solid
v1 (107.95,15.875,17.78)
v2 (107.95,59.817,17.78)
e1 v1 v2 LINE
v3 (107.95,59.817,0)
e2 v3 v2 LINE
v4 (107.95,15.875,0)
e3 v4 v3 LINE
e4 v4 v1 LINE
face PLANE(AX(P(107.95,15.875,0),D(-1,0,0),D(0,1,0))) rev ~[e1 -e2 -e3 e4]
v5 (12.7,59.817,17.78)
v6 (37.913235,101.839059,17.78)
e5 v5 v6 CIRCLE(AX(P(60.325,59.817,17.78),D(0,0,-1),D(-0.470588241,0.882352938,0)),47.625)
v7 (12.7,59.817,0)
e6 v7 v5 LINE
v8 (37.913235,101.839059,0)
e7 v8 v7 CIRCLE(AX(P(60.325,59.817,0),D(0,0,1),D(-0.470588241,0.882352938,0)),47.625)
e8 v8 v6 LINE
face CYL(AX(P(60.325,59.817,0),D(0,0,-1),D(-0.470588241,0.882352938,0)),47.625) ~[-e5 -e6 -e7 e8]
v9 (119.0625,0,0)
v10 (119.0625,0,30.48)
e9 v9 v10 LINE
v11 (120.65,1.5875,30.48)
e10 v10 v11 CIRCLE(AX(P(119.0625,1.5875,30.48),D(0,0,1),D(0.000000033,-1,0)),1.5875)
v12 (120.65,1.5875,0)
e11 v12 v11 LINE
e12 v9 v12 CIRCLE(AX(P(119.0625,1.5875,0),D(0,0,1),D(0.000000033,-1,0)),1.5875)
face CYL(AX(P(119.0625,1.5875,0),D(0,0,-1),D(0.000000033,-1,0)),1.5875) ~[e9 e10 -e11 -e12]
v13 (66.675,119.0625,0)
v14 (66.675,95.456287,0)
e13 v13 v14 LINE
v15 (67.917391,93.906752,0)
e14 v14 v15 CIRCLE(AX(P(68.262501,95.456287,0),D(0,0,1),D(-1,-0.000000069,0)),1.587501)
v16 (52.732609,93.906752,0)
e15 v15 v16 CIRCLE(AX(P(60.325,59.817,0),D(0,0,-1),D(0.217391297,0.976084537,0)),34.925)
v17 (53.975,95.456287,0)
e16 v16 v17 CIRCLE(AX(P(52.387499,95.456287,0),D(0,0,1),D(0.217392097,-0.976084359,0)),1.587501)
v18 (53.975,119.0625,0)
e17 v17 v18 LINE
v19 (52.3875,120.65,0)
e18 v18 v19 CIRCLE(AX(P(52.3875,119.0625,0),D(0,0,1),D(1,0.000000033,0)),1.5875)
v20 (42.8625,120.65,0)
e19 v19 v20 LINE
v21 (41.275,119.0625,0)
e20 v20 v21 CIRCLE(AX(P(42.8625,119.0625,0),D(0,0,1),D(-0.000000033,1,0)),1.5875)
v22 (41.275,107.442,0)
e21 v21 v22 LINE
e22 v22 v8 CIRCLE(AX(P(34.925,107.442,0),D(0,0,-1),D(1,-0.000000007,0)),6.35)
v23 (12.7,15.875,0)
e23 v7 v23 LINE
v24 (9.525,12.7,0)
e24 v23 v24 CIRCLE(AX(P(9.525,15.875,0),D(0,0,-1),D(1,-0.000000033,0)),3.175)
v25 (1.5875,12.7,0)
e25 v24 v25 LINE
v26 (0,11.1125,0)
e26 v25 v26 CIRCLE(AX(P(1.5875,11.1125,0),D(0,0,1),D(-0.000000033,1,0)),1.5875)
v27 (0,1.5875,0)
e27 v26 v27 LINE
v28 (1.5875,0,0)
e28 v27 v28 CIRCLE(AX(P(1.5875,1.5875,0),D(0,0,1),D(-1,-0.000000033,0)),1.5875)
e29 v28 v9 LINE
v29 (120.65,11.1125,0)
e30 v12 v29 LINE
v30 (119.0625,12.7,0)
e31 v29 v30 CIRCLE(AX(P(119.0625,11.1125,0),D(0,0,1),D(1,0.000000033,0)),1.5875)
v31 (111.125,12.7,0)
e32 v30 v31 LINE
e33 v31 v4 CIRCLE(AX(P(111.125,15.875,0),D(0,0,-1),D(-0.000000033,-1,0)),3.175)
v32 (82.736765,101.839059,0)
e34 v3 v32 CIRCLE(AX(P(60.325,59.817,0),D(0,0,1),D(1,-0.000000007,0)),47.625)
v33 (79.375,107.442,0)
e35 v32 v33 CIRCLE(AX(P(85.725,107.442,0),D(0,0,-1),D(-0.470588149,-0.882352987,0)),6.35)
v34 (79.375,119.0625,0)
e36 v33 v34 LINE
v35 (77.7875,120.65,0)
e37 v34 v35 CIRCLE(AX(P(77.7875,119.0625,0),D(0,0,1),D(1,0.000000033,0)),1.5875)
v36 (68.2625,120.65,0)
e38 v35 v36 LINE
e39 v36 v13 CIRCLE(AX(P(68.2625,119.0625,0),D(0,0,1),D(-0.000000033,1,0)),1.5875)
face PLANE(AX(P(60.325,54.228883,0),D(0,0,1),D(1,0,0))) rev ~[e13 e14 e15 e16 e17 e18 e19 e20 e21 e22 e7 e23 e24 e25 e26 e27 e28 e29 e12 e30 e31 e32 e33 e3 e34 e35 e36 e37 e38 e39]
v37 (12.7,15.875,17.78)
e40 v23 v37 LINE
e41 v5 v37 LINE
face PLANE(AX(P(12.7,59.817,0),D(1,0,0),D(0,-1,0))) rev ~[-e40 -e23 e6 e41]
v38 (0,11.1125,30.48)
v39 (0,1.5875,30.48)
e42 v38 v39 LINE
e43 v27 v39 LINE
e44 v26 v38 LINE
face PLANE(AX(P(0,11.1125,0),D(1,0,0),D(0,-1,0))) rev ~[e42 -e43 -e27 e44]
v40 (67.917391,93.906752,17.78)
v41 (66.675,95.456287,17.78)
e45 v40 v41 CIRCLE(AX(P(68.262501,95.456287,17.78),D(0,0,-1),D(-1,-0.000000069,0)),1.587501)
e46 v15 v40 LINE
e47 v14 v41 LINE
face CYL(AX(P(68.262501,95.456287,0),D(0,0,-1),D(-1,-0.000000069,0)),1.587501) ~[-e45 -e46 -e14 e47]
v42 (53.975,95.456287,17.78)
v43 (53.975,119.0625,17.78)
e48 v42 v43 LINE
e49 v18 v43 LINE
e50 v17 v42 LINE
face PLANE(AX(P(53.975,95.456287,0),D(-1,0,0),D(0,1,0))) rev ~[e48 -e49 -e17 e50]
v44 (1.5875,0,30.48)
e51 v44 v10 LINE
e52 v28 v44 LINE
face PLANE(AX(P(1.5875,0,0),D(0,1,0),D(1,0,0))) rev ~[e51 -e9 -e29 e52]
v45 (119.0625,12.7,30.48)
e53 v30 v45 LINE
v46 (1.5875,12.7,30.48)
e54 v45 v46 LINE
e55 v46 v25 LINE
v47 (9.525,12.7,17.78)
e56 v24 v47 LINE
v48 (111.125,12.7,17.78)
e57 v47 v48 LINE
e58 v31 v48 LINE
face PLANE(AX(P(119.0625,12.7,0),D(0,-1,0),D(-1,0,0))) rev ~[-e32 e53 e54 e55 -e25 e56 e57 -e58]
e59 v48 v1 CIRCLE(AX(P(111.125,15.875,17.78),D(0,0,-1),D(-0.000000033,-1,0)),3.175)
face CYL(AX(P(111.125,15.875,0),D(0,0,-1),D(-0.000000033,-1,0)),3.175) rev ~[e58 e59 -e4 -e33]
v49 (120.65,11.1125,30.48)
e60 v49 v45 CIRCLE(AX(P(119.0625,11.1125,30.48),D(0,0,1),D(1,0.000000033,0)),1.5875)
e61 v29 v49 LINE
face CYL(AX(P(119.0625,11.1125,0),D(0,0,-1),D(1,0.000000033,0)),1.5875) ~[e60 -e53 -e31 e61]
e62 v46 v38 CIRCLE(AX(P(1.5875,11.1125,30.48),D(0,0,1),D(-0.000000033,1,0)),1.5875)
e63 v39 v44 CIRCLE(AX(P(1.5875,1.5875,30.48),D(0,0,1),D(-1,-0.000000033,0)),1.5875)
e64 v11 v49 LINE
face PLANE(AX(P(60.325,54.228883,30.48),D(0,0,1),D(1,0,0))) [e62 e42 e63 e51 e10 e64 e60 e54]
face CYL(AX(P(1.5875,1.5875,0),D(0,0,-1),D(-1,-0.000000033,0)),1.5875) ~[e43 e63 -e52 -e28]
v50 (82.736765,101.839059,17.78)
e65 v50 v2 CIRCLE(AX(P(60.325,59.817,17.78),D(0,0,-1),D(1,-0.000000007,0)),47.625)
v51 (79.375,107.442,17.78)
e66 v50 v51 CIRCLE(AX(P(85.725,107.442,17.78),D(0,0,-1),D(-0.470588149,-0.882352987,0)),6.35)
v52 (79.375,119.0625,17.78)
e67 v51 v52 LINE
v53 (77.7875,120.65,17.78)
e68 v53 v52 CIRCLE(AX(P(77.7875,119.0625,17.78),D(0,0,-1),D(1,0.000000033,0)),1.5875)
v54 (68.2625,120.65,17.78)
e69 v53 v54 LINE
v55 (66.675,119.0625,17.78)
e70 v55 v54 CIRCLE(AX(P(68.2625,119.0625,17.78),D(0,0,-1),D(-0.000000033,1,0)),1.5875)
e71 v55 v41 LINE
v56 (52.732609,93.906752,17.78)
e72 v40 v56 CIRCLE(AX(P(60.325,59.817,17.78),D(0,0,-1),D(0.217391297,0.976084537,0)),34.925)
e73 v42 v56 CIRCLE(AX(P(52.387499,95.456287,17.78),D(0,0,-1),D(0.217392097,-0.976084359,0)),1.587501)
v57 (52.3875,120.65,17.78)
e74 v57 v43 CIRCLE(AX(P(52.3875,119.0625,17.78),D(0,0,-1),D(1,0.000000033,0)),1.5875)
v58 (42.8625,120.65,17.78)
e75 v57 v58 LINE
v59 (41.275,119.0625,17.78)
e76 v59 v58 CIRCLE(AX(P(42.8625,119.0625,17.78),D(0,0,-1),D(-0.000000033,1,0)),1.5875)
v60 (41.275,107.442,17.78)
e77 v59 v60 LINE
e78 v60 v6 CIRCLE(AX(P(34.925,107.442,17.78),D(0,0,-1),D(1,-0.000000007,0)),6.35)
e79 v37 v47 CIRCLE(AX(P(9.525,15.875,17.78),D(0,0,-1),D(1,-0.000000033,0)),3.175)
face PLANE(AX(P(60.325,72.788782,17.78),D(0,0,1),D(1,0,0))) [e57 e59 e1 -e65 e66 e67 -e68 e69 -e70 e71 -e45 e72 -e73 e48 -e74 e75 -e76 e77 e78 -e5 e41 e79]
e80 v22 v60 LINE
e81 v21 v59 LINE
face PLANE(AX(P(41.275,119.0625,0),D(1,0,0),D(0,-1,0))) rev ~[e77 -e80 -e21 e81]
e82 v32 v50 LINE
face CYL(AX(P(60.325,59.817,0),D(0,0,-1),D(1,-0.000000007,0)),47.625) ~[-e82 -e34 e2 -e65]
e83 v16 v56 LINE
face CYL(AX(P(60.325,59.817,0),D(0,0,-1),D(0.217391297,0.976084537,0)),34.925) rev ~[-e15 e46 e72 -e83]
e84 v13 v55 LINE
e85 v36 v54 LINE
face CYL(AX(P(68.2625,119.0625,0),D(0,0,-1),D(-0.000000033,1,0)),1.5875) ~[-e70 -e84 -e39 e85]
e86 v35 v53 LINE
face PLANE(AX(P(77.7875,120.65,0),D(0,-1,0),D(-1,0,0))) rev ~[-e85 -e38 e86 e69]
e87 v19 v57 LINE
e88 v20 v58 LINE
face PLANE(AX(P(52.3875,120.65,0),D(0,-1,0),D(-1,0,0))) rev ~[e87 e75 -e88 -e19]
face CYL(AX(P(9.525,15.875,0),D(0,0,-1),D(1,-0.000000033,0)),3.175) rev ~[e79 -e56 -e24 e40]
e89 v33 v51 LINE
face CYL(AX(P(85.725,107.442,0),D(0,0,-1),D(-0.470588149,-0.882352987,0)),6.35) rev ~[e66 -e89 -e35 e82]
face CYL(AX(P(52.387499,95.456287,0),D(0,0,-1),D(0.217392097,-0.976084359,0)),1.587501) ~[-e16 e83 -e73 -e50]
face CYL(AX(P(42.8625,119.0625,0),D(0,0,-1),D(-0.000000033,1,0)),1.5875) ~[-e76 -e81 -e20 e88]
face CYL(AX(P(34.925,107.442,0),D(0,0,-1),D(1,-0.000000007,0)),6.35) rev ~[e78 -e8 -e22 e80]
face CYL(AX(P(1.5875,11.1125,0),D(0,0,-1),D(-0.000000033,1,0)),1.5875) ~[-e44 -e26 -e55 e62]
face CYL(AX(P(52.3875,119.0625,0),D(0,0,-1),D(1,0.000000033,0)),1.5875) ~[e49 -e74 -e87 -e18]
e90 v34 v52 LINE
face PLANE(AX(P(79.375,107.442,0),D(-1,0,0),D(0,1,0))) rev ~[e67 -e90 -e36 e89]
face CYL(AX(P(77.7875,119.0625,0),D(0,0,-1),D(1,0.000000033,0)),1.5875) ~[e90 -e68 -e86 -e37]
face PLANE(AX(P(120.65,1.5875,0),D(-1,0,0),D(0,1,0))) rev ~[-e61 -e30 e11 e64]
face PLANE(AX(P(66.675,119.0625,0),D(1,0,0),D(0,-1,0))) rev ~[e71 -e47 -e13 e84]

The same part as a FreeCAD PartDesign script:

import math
import FreeCAD as App
import Part
import Sketcher
Q = App.Units.Quantity

doc = App.newDocument("Part")
params = doc.addObject("Spreadsheet::Sheet", "Params")
for row, (alias, value) in enumerate([
    ("sketch1_radius", "0.25 in"),
    ("sketch1_radius2", "0.0625 in"),
    ("sketch1_radius3", "0.125 in"),
    ("sketch1_radius4", "1.875 in"),
    ("sketch1_radius5", "1.375 in"),
    ("pad1_length", "1.2 in"),
    ("sketch2_radius", "3 in"),
    ("sketch2_width", "4.625 in"),
    ("pocket1_length", "0.5 in"),
], start=1):
    params.set(f"A{row}", alias)
    params.set(f"B{row}", "=" + value)
    params.setAlias(f"B{row}", alias)

body = doc.addObject("PartDesign::Body", "Body")

sketch1 = doc.addObject("Sketcher::SketchObject", "Sketch")
body.addObject(sketch1)
sketch1.AttachmentSupport = (doc.XY_Plane, [""])
sketch1.MapMode = "FlatFace"
sketch1.addGeometry([
    Part.ArcOfCircle(Part.Circle(App.Vector(1.6, 1.6, 0), App.Vector(0, 0, 1), 1.6), math.radians(-180), math.radians(-90)),
    Part.LineSegment(App.Vector(1.6, 0, 0), App.Vector(119.1, 0, 0)),
    Part.ArcOfCircle(Part.Circle(App.Vector(119.1, 1.6, 0), App.Vector(0, 0, 1), 1.6), math.radians(-90), math.radians(0)),
    Part.LineSegment(App.Vector(120.7, 1.6, 0), App.Vector(120.7, 11.1, 0)),
    Part.ArcOfCircle(Part.Circle(App.Vector(119.1, 11.1, 0), App.Vector(0, 0, 1), 1.6), math.radians(0), math.radians(90)),
    Part.LineSegment(App.Vector(119.1, 12.7, 0), App.Vector(111.1, 12.7, 0)),
    Part.ArcOfCircle(Part.Circle(App.Vector(111.1, 15.9, 0), App.Vector(0, 0, 1), 3.2), math.radians(-180), math.radians(-90)),
    Part.LineSegment(App.Vector(108, 15.9, 0), App.Vector(108, 59.8, 0)),
    Part.ArcOfCircle(Part.Circle(App.Vector(60.3, 59.8, 0), App.Vector(0, 0, 1), 47.6), math.radians(0), math.radians(62)),
    Part.ArcOfCircle(Part.Circle(App.Vector(85.7, 107.4, 0), App.Vector(0, 0, 1), 6.3), math.radians(-180), math.radians(-118)),
    Part.LineSegment(App.Vector(79.4, 107.4, 0), App.Vector(79.4, 119.1, 0)),
    Part.ArcOfCircle(Part.Circle(App.Vector(77.8, 119.1, 0), App.Vector(0, 0, 1), 1.6), math.radians(0), math.radians(90)),
    Part.LineSegment(App.Vector(77.8, 120.7, 0), App.Vector(68.3, 120.7, 0)),
    Part.ArcOfCircle(Part.Circle(App.Vector(68.3, 119.1, 0), App.Vector(0, 0, 1), 1.6), math.radians(90), math.radians(180)),
    Part.LineSegment(App.Vector(66.7, 119.1, 0), App.Vector(66.7, 95.5, 0)),
    Part.ArcOfCircle(Part.Circle(App.Vector(68.3, 95.5, 0), App.Vector(0, 0, 1), 1.6), math.radians(-180), math.radians(-103)),
    Part.ArcOfCircle(Part.Circle(App.Vector(60.3, 59.8, 0), App.Vector(0, 0, 1), 34.9), math.radians(103), math.radians(437)),
    Part.ArcOfCircle(Part.Circle(App.Vector(52.4, 95.5, 0), App.Vector(0, 0, 1), 1.6), math.radians(-77), math.radians(0)),
    Part.LineSegment(App.Vector(54, 95.5, 0), App.Vector(54, 119.1, 0)),
    Part.ArcOfCircle(Part.Circle(App.Vector(52.4, 119.1, 0), App.Vector(0, 0, 1), 1.6), math.radians(0), math.radians(90)),
    Part.LineSegment(App.Vector(52.4, 120.7, 0), App.Vector(42.9, 120.7, 0)),
    Part.ArcOfCircle(Part.Circle(App.Vector(42.9, 119.1, 0), App.Vector(0, 0, 1), 1.6), math.radians(90), math.radians(180)),
    Part.LineSegment(App.Vector(41.3, 119.1, 0), App.Vector(41.3, 107.4, 0)),
    Part.ArcOfCircle(Part.Circle(App.Vector(34.9, 107.4, 0), App.Vector(0, 0, 1), 6.3), math.radians(-62), math.radians(0)),
    Part.ArcOfCircle(Part.Circle(App.Vector(60.3, 59.8, 0), App.Vector(0, 0, 1), 47.6), math.radians(118), math.radians(180)),
    Part.LineSegment(App.Vector(12.7, 59.8, 0), App.Vector(12.7, 15.9, 0)),
    Part.ArcOfCircle(Part.Circle(App.Vector(9.5, 15.9, 0), App.Vector(0, 0, 1), 3.2), math.radians(-90), math.radians(0)),
    Part.LineSegment(App.Vector(9.5, 12.7, 0), App.Vector(1.6, 12.7, 0)),
    Part.ArcOfCircle(Part.Circle(App.Vector(1.6, 11.1, 0), App.Vector(0, 0, 1), 1.6), math.radians(90), math.radians(180)),
    Part.LineSegment(App.Vector(0, 11.1, 0), App.Vector(0, 1.6, 0)),
], False)
sketch1.addConstraint([
    Sketcher.Constraint("Tangent", 0, 2, 1, 1),
    Sketcher.Constraint("Tangent", 1, 2, 2, 1),
    Sketcher.Constraint("Tangent", 2, 2, 3, 1),
    Sketcher.Constraint("Tangent", 3, 2, 4, 1),
    Sketcher.Constraint("Tangent", 4, 2, 5, 1),
    Sketcher.Constraint("Tangent", 5, 2, 6, 2),
    Sketcher.Constraint("Tangent", 6, 1, 7, 1),
    Sketcher.Constraint("Tangent", 7, 2, 8, 1),
    Sketcher.Constraint("Tangent", 8, 2, 9, 2),
    Sketcher.Constraint("Tangent", 9, 1, 10, 1),
    Sketcher.Constraint("Tangent", 10, 2, 11, 1),
    Sketcher.Constraint("Tangent", 11, 2, 12, 1),
    Sketcher.Constraint("Tangent", 12, 2, 13, 1),
    Sketcher.Constraint("Tangent", 13, 2, 14, 1),
    Sketcher.Constraint("Tangent", 14, 2, 15, 1),
    Sketcher.Constraint("Tangent", 15, 2, 16, 2),
    Sketcher.Constraint("Tangent", 16, 1, 17, 1),
    Sketcher.Constraint("Tangent", 17, 2, 18, 1),
    Sketcher.Constraint("Tangent", 18, 2, 19, 1),
    Sketcher.Constraint("Tangent", 19, 2, 20, 1),
    Sketcher.Constraint("Tangent", 20, 2, 21, 1),
    Sketcher.Constraint("Tangent", 21, 2, 22, 1),
    Sketcher.Constraint("Tangent", 22, 2, 23, 2),
    Sketcher.Constraint("Tangent", 23, 1, 24, 1),
    Sketcher.Constraint("Tangent", 24, 2, 25, 1),
    Sketcher.Constraint("Tangent", 25, 2, 26, 2),
    Sketcher.Constraint("Tangent", 26, 1, 27, 1),
    Sketcher.Constraint("Tangent", 27, 2, 28, 1),
    Sketcher.Constraint("Tangent", 28, 2, 29, 1),
    Sketcher.Constraint("Tangent", 29, 2, 0, 1),
    Sketcher.Constraint("Horizontal", 1),
    Sketcher.Constraint("Vertical", 3),
    Sketcher.Constraint("Horizontal", 5),
    Sketcher.Constraint("Vertical", 7),
    Sketcher.Constraint("Vertical", 10),
    Sketcher.Constraint("Horizontal", 12),
    Sketcher.Constraint("Vertical", 14),
    Sketcher.Constraint("Vertical", 18),
    Sketcher.Constraint("Horizontal", 20),
    Sketcher.Constraint("Vertical", 22),
    Sketcher.Constraint("Vertical", 25),
    Sketcher.Constraint("Horizontal", 27),
    Sketcher.Constraint("Vertical", 29),
    Sketcher.Constraint("Coincident", 16, 3, 8, 3),
    Sketcher.Constraint("Coincident", 24, 3, 8, 3),
    Sketcher.Constraint("Equal", 0, 2),
    Sketcher.Constraint("Equal", 2, 4),
    Sketcher.Constraint("Equal", 4, 11),
    Sketcher.Constraint("Equal", 11, 13),
    Sketcher.Constraint("Equal", 13, 15),
    Sketcher.Constraint("Equal", 15, 17),
    Sketcher.Constraint("Equal", 17, 19),
    Sketcher.Constraint("Equal", 19, 21),
    Sketcher.Constraint("Equal", 9, 23),
    Sketcher.Constraint("Equal", 8, 24),
    Sketcher.Constraint("Equal", 6, 26),
    Sketcher.Constraint("Equal", 21, 28),
    Sketcher.Constraint("PointOnObject", 0, 2, -1),
    Sketcher.Constraint("PointOnObject", 28, 2, -2),
    Sketcher.Constraint("Horizontal", 15, 3, 17, 3),
    Sketcher.Constraint("Horizontal", 13, 3, 19, 3),
    Sketcher.Constraint("Horizontal", 9, 3, 23, 3),
    Sketcher.Constraint("Horizontal", 6, 3, 26, 3),
    Sketcher.Constraint("Equal", 5, 27),
    Sketcher.Constraint("Equal", 20, 3),
    Sketcher.Constraint("Radius", 9, Q("0.25 in")),
    Sketcher.Constraint("Radius", 0, Q("0.0625 in")),
    Sketcher.Constraint("Radius", 6, Q("0.125 in")),
    Sketcher.Constraint("Radius", 8, Q("1.875 in")),
    Sketcher.Constraint("Radius", 16, Q("1.375 in")),
    Sketcher.Constraint("DistanceX", 8, 3, 9, 3, Q("1 in")),
    Sketcher.Constraint("DistanceX", 13, 3, 4, 3, Q("2 in")),
    Sketcher.Constraint("DistanceX", 17, 3, 11, 3, Q("1 in")),
    Sketcher.Constraint("DistanceY", 7, 1, 7, 2, Q("1.73 in")),
    Sketcher.Constraint("DistanceY", -1, 1, 11, 2, Q("4.75 in")),
])
sketch1.setExpression("Constraints[65]", "Params.sketch1_radius")
sketch1.setExpression("Constraints[66]", "Params.sketch1_radius2")
sketch1.setExpression("Constraints[67]", "Params.sketch1_radius3")
sketch1.setExpression("Constraints[68]", "Params.sketch1_radius4")
sketch1.setExpression("Constraints[69]", "Params.sketch1_radius5")
pad1 = doc.addObject("PartDesign::Pad", "Pad")
body.addObject(pad1)
pad1.Profile = sketch1
pad1.setExpression("Length", "Params.pad1_length")

sketch2 = doc.addObject("Sketcher::SketchObject", "Sketch001")
body.addObject(sketch2)
sketch2.AttachmentSupport = (doc.XY_Plane, [""])
sketch2.MapMode = "FlatFace"
sketch2.AttachmentOffset = App.Placement(App.Vector(0, 0, 1.2 * 25.4), App.Rotation())
sketch2.addGeometry([
    Part.LineSegment(App.Vector(119, 13, 0), App.Vector(119, 32, 0)),
    Part.ArcOfCircle(Part.Circle(App.Vector(60, 81, 0), App.Vector(0, 0, 1), 76), math.radians(-40), math.radians(220)),
    Part.LineSegment(App.Vector(2, 32, 0), App.Vector(2, 13, 0)),
    Part.LineSegment(App.Vector(2, 13, 0), App.Vector(119, 13, 0)),
], False)
sketch2.addConstraint([
    Sketcher.Constraint("Coincident", 0, 2, 1, 1),
    Sketcher.Constraint("Coincident", 1, 2, 2, 1),
    Sketcher.Constraint("Coincident", 2, 2, 3, 1),
    Sketcher.Constraint("Coincident", 3, 2, 0, 1),
    Sketcher.Constraint("Vertical", 0),
    Sketcher.Constraint("Vertical", 2),
    Sketcher.Constraint("Horizontal", 3),
    Sketcher.Constraint("Horizontal", 0, 2, 1, 2),
    Sketcher.Constraint("Radius", 1, Q("3 in")),
    Sketcher.Constraint("DistanceY", -1, 1, 2, 2, Q("0.5 in")),
    Sketcher.Constraint("DistanceX", 3, 1, 3, 2, Q("4.625 in")),
    Sketcher.Constraint("DistanceY", -1, 1, 1, 3, Q("3.18 in")),
    Sketcher.Constraint("DistanceX", -1, 1, 1, 3, Q("2.375 in")),
])
sketch2.setExpression("Constraints[8]", "Params.sketch2_radius")
sketch2.setExpression("Constraints[10]", "Params.sketch2_width")
pocket1 = doc.addObject("PartDesign::Pocket", "Pocket")
body.addObject(pocket1)
pocket1.Profile = sketch2
pocket1.setExpression("Length", "Params.pocket1_length")

doc.recompute()
